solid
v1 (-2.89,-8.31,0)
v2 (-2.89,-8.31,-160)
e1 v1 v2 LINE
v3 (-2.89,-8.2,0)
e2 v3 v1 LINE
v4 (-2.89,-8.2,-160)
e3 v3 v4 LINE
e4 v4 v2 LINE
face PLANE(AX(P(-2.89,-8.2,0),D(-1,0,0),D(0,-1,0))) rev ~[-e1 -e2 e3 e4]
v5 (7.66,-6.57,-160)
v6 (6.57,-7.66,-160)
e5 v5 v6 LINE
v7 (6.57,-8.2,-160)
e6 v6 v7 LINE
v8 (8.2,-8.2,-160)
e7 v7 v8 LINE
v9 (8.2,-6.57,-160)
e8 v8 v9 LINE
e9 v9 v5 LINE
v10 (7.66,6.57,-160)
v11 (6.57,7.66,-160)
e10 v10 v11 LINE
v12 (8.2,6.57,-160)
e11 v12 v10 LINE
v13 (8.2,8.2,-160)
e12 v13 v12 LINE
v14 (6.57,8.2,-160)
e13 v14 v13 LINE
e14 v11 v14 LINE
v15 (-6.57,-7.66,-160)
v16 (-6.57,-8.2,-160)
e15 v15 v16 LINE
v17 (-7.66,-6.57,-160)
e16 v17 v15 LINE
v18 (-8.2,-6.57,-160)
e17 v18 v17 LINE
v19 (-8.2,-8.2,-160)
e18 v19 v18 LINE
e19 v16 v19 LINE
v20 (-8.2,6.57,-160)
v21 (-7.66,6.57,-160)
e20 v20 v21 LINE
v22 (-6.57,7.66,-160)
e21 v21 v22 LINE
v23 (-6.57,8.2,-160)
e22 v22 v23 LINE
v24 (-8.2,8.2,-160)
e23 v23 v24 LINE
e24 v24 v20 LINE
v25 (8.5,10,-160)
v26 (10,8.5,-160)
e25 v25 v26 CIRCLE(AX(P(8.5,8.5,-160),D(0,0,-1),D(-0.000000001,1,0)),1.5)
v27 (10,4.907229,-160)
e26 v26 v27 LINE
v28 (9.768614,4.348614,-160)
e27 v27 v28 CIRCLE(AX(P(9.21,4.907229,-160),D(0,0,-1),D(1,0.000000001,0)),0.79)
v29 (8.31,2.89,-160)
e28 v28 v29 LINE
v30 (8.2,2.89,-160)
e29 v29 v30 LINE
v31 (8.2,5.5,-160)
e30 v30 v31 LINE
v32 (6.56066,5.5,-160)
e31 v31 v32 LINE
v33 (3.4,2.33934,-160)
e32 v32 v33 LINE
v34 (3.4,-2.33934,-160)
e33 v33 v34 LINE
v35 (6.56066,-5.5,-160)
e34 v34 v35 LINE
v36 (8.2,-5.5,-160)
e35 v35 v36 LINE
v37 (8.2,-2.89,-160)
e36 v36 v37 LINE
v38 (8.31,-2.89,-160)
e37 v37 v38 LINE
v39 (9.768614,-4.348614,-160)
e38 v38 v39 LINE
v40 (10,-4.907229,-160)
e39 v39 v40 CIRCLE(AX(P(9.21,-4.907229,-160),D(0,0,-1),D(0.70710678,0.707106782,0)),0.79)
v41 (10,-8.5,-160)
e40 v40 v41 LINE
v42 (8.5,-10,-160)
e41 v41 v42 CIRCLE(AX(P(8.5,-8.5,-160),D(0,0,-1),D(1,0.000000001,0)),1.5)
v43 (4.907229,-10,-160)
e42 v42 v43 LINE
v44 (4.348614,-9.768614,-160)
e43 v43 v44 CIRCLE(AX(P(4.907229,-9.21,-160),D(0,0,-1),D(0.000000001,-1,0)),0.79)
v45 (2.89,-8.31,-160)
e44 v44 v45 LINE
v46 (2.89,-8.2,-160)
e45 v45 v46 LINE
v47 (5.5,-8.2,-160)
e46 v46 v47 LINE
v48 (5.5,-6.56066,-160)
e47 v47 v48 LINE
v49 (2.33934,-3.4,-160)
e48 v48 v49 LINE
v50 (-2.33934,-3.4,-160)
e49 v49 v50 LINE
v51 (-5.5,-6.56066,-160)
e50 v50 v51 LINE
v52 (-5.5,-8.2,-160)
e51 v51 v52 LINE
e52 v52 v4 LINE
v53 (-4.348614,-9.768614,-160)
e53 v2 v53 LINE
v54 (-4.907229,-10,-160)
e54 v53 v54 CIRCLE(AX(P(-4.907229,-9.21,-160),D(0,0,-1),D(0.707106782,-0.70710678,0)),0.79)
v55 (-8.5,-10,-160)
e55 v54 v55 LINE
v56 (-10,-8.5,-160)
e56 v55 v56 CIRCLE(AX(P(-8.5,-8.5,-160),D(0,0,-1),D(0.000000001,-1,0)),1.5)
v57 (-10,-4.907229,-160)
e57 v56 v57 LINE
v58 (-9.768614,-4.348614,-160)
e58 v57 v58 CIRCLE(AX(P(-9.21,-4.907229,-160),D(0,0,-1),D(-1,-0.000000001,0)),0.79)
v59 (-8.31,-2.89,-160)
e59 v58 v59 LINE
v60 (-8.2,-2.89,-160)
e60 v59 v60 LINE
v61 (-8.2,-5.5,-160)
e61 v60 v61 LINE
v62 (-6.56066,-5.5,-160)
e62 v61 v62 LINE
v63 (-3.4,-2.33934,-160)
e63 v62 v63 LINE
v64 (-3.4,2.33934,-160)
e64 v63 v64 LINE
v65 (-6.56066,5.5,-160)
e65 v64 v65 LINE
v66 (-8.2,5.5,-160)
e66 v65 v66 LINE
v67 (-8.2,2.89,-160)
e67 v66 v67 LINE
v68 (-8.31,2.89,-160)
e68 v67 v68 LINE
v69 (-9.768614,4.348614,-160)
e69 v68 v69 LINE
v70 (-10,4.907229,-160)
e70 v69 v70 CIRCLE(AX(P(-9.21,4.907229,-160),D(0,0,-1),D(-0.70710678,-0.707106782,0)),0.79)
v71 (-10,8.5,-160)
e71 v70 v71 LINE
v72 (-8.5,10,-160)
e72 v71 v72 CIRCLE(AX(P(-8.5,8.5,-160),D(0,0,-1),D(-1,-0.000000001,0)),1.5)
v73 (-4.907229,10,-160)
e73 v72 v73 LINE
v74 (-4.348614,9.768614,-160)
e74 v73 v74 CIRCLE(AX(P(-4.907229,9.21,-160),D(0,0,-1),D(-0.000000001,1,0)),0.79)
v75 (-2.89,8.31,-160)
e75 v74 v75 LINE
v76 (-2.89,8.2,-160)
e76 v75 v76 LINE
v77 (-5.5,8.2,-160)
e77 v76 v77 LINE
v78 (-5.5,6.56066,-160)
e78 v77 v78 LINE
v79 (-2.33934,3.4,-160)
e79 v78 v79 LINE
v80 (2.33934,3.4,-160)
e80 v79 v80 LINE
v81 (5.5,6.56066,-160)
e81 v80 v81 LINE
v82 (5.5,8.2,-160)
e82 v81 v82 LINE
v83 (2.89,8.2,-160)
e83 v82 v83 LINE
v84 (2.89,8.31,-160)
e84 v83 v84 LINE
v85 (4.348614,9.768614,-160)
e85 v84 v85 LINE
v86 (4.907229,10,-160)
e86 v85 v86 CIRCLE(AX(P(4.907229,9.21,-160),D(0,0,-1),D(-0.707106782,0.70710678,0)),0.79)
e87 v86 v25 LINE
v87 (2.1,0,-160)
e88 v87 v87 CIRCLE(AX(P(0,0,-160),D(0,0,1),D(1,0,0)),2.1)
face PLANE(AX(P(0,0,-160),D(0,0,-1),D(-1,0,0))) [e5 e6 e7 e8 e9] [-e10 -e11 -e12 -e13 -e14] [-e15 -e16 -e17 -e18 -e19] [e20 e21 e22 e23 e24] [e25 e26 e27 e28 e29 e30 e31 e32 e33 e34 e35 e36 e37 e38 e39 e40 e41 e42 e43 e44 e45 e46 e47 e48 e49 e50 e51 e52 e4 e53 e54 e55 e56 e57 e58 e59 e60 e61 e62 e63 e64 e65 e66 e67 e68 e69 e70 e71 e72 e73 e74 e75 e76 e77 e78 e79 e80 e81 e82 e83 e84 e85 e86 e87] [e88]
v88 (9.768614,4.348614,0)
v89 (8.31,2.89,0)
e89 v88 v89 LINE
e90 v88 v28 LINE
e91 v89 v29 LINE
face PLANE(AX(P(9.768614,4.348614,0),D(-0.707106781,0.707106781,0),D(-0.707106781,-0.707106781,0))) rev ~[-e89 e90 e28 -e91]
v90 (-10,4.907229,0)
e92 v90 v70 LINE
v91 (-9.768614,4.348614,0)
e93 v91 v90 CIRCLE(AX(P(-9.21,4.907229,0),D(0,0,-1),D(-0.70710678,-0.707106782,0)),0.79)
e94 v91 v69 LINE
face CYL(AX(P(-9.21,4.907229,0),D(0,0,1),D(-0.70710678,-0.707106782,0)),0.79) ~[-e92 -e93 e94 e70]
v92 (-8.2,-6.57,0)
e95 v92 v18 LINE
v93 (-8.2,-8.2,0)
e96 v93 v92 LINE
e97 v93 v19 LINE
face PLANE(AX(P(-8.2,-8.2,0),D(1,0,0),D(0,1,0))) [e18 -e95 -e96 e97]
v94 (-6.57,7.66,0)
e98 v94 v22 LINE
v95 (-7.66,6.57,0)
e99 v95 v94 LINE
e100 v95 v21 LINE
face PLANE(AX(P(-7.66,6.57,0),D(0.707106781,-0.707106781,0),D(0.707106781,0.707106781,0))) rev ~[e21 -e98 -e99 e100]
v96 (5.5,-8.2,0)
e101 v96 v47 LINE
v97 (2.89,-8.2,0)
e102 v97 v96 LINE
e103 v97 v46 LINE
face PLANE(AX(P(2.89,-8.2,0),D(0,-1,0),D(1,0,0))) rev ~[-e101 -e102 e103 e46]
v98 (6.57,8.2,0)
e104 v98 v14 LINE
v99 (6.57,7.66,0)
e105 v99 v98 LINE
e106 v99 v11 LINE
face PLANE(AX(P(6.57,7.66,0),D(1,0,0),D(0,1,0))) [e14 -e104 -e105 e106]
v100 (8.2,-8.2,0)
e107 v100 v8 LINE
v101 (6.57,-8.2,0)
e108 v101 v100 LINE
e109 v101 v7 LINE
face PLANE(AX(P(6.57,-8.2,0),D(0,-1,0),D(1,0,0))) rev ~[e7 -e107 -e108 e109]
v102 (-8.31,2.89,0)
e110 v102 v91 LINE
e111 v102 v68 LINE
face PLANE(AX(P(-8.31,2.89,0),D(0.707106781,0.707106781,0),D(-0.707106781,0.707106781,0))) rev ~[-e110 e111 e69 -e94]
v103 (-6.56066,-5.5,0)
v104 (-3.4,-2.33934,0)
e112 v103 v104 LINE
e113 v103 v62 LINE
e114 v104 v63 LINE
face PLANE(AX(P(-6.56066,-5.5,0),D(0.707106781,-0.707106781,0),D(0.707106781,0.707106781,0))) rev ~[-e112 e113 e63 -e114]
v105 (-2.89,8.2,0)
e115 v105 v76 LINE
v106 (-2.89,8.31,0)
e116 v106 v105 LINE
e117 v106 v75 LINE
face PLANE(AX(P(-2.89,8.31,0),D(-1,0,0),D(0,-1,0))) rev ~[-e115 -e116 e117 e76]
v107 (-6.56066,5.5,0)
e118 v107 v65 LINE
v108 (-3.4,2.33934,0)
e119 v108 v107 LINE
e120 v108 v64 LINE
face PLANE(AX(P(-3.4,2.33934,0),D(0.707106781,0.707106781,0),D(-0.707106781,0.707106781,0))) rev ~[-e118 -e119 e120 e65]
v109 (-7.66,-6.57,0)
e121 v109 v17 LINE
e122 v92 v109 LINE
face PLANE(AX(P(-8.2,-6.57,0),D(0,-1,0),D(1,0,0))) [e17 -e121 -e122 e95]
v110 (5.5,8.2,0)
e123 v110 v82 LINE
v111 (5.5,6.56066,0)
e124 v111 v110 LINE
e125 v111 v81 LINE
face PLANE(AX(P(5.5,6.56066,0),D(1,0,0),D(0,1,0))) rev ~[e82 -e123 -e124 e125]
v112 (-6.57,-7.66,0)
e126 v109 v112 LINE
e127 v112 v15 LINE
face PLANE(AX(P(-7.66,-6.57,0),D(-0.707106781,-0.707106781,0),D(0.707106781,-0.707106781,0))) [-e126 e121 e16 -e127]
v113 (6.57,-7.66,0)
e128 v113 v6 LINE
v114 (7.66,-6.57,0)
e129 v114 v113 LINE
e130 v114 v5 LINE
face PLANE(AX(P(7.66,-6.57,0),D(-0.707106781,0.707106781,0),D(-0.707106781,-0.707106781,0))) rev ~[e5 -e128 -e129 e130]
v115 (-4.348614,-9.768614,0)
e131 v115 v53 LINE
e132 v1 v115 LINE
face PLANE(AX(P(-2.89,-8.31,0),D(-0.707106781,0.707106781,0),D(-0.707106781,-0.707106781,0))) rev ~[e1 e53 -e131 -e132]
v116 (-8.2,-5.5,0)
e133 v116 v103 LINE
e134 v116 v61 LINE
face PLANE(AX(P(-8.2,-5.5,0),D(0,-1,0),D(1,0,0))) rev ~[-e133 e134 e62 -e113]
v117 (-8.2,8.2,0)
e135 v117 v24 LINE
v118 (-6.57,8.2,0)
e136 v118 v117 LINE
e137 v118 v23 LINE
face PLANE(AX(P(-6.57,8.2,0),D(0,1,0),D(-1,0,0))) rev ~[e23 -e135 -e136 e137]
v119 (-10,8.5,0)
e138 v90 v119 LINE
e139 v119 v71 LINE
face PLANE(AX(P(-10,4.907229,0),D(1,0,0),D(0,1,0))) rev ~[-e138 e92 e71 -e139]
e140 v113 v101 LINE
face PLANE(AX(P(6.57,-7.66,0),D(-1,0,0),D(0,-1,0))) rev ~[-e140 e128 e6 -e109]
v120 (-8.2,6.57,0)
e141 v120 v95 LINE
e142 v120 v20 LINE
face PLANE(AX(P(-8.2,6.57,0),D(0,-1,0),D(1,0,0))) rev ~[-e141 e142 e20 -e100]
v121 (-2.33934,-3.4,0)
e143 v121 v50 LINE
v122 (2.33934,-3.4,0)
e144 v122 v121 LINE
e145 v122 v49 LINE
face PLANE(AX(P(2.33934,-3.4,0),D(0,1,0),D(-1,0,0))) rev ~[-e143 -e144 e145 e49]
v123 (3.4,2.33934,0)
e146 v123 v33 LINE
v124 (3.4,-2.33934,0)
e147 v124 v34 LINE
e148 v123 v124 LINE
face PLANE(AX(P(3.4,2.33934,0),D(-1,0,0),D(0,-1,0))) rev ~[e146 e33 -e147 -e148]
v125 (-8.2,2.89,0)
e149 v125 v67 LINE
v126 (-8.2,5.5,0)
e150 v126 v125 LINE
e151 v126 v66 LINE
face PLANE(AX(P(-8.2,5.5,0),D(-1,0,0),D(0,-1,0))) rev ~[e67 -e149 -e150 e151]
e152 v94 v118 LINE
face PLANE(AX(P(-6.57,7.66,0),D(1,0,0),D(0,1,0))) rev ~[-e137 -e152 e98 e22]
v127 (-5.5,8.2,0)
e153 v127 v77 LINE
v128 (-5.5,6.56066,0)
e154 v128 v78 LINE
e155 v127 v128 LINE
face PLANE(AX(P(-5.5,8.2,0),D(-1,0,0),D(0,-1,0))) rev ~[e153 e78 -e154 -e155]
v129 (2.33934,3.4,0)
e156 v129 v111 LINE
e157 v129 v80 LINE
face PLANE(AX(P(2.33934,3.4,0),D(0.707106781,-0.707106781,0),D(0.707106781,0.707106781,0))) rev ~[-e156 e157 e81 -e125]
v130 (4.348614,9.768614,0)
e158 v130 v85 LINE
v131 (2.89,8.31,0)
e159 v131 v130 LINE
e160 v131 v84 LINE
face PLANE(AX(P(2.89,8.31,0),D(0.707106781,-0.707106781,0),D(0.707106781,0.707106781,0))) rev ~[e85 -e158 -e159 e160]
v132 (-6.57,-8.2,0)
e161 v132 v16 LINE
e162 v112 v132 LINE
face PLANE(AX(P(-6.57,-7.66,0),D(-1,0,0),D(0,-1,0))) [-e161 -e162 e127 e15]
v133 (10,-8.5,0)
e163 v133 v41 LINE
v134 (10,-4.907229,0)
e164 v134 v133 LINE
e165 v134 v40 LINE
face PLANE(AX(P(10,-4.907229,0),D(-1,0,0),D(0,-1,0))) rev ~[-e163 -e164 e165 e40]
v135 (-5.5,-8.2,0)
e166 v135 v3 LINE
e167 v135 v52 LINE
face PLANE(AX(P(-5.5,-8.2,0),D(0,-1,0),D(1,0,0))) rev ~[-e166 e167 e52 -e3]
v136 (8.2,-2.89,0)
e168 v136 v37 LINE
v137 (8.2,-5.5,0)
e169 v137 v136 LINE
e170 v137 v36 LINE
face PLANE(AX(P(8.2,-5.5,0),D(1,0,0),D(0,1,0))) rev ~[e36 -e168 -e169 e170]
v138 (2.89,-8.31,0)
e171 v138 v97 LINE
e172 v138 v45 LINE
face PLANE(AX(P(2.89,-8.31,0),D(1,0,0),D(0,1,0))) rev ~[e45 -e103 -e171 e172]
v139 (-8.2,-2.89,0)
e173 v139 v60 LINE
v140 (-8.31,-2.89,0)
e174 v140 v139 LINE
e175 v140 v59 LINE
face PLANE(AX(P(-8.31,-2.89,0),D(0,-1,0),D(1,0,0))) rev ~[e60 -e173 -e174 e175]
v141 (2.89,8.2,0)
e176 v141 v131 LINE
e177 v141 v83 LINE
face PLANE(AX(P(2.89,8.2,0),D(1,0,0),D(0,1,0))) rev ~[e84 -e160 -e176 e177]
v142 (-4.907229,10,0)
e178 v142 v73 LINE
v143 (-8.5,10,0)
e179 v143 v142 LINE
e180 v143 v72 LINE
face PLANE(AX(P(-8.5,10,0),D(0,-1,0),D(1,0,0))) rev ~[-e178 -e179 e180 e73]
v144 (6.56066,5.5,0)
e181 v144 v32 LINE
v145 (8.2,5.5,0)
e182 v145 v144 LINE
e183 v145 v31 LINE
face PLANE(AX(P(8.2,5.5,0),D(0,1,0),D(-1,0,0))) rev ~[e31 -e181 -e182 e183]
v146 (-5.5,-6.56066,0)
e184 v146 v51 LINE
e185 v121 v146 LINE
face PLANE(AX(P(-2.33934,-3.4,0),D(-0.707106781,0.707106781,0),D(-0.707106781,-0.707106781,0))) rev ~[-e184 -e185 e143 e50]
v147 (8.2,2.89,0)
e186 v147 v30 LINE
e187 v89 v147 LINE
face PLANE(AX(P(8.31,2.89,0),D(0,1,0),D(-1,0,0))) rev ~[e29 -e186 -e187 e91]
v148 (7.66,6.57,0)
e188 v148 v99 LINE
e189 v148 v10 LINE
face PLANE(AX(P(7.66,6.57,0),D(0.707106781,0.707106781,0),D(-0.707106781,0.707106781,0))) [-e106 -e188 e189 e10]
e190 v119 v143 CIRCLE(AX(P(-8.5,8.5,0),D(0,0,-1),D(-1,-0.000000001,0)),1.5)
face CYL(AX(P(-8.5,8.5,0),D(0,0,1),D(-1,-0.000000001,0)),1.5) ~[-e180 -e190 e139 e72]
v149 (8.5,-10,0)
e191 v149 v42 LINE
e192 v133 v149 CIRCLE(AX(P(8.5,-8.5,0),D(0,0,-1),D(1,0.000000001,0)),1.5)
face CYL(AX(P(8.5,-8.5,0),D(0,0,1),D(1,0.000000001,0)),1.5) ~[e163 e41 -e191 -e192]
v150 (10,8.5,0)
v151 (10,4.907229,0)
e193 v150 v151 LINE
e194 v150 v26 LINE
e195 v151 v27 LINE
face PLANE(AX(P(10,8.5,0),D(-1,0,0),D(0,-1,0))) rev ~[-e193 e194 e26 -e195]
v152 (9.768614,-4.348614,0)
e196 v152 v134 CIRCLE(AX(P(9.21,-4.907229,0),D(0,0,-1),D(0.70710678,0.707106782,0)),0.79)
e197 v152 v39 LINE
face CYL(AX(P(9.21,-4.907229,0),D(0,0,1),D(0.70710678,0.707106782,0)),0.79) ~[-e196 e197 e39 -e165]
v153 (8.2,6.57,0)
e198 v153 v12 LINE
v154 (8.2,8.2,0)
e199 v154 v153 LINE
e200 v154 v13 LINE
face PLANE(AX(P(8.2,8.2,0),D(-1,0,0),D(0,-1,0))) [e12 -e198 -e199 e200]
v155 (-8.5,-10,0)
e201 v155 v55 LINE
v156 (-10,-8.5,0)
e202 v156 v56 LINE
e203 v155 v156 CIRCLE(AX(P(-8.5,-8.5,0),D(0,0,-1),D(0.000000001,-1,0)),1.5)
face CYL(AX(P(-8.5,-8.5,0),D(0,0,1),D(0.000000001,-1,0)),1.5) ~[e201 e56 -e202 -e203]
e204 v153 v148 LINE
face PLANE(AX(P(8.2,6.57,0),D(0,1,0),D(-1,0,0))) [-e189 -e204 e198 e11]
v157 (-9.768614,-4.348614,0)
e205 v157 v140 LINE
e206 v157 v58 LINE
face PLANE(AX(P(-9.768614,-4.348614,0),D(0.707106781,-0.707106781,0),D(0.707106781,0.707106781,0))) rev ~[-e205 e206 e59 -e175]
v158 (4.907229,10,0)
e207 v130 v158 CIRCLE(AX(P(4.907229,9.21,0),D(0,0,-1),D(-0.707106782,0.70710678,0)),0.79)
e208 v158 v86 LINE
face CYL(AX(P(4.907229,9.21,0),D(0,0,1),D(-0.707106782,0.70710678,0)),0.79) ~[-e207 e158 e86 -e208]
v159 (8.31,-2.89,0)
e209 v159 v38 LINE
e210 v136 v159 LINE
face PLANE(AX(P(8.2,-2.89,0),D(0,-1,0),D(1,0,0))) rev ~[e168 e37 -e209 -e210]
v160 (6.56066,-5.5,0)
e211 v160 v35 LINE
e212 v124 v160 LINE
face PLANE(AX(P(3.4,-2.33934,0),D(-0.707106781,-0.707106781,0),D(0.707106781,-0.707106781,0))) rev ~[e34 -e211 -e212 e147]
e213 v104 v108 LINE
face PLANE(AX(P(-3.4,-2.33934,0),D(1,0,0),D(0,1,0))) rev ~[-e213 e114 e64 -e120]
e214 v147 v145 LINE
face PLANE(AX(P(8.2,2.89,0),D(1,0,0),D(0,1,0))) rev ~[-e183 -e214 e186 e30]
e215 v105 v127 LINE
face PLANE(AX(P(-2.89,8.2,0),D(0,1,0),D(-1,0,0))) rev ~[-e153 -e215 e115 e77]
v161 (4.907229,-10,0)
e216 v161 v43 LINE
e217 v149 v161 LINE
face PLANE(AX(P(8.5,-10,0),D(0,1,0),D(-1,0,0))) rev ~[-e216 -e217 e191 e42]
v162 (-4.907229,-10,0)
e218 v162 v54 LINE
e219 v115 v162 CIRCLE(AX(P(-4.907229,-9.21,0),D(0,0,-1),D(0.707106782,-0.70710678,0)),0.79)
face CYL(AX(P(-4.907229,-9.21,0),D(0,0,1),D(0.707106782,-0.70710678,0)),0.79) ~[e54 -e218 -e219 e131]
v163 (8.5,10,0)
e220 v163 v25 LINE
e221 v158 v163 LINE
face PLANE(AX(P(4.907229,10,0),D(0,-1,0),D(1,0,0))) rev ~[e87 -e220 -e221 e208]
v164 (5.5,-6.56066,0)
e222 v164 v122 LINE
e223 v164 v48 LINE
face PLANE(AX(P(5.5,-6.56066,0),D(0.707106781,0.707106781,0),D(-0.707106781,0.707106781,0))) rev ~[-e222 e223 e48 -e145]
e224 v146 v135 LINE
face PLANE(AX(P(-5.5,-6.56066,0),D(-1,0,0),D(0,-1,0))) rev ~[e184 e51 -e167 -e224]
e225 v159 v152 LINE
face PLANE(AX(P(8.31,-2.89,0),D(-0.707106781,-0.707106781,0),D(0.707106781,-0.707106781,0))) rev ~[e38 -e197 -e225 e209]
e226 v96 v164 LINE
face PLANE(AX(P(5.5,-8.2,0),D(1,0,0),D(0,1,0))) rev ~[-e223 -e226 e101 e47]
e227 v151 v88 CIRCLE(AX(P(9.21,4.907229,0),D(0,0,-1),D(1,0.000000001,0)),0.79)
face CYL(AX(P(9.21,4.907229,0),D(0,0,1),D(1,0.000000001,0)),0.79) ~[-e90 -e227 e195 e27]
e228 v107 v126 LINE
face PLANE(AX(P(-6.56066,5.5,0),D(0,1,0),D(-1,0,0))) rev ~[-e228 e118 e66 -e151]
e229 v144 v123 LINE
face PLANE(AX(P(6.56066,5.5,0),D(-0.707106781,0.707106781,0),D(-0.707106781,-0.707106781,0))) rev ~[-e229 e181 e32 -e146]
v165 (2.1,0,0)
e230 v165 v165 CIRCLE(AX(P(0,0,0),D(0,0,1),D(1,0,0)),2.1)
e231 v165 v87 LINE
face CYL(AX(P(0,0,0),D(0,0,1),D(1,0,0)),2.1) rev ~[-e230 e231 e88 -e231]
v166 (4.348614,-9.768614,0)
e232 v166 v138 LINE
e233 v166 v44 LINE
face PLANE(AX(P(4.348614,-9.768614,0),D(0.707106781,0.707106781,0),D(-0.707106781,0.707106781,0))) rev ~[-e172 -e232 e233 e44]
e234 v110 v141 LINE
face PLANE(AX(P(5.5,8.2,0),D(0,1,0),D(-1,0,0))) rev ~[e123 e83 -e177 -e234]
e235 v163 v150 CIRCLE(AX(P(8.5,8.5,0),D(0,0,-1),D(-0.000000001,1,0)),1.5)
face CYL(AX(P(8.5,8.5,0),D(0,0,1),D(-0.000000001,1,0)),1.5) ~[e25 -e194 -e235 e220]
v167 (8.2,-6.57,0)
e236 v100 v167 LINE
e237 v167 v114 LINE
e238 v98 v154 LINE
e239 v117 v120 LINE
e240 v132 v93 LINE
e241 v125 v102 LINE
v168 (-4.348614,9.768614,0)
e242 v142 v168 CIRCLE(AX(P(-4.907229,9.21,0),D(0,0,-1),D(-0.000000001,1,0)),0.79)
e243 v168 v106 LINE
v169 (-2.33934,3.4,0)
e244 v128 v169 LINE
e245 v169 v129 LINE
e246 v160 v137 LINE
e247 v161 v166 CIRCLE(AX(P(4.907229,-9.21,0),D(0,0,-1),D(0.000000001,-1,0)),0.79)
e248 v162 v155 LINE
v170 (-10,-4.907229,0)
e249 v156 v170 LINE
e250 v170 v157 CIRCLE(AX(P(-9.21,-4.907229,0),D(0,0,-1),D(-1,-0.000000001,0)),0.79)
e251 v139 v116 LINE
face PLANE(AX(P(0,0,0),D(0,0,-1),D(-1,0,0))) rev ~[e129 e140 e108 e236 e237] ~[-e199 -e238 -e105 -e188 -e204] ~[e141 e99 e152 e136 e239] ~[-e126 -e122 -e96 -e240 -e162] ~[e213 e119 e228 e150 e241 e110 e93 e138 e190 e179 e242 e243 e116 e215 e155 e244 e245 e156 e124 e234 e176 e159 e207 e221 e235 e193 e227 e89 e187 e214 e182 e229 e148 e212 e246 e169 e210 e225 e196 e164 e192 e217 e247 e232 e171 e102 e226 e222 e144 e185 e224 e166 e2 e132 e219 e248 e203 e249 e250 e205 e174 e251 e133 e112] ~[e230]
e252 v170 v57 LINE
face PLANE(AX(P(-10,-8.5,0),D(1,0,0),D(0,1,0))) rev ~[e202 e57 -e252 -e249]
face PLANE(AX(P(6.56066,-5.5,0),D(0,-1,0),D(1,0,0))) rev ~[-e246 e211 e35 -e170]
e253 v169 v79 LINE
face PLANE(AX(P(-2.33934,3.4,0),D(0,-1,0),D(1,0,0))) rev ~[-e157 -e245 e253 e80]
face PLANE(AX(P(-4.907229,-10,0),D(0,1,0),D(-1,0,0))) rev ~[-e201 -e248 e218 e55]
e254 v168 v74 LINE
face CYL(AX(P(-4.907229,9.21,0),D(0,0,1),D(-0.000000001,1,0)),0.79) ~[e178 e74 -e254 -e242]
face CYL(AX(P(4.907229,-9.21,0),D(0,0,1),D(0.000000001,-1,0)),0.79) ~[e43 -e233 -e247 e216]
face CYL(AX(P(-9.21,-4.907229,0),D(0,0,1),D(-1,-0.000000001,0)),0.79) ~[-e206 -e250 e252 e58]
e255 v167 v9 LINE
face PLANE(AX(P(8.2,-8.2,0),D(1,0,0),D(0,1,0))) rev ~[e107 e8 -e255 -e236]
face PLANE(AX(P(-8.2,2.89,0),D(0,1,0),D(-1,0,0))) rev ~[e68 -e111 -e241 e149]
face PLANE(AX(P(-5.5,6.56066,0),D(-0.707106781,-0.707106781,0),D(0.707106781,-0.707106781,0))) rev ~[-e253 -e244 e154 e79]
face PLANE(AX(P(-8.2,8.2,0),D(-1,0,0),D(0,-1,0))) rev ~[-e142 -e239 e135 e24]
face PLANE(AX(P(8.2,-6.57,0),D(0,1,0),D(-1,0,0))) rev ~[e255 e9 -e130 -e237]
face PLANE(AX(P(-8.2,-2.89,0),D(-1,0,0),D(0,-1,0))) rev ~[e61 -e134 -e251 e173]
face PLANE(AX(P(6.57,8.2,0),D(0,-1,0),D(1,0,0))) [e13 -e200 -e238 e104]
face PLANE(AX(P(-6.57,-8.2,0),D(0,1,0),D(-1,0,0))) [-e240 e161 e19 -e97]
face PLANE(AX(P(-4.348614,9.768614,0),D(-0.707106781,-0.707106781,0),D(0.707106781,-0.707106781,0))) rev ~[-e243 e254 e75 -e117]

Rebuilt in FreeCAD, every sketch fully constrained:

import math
import FreeCAD as App
import Part
import Sketcher
Q = App.Units.Quantity

doc = App.newDocument("Part")
body = doc.addObject("PartDesign::Body", "Body")

sketch1 = body.newObject("Sketcher::SketchObject", "Sketch")
sketch1.AttachmentSupport = (doc.getObject("XY_Plane"), [""])
sketch1.MapMode = "FlatFace"
sketch1.addGeometry(Part.LineSegment(App.Vector(-3.4, 2.34, 0), App.Vector(-3.4, -2.34, 0)), False)
sketch1.addGeometry(Part.LineSegment(App.Vector(-3.4, -2.34, 0), App.Vector(-6.56, -5.5, 0)), False)
sketch1.addGeometry(Part.LineSegment(App.Vector(-6.56, -5.5, 0), App.Vector(-8.2, -5.5, 0)), False)
sketch1.addGeometry(Part.LineSegment(App.Vector(-8.2, -5.5, 0), App.Vector(-8.2, -2.89, 0)), False)
sketch1.addGeometry(Part.LineSegment(App.Vector(-8.2, -2.89, 0), App.Vector(-8.31, -2.89, 0)), False)
sketch1.addGeometry(Part.LineSegment(App.Vector(-8.31, -2.89, 0), App.Vector(-9.77, -4.35, 0)), False)
sketch1.addGeometry(Part.ArcOfCircle(Part.Circle(App.Vector(-9.21, -4.91, 0), App.Vector(0, 0, 1), 0.79), math.radians(135), math.radians(180)), False)
sketch1.addGeometry(Part.LineSegment(App.Vector(-10, -4.91, 0), App.Vector(-10, -8.5, 0)), False)
sketch1.addGeometry(Part.ArcOfCircle(Part.Circle(App.Vector(-8.5, -8.5, 0), App.Vector(0, 0, 1), 1.5), math.radians(180), math.radians(270)), False)
sketch1.addGeometry(Part.LineSegment(App.Vector(-8.5, -10, 0), App.Vector(-4.91, -10, 0)), False)
sketch1.addGeometry(Part.ArcOfCircle(Part.Circle(App.Vector(-4.91, -9.21, 0), App.Vector(0, 0, 1), 0.79), math.radians(-90), math.radians(-45)), False)
sketch1.addGeometry(Part.LineSegment(App.Vector(-4.35, -9.77, 0), App.Vector(-2.89, -8.31, 0)), False)
sketch1.addGeometry(Part.LineSegment(App.Vector(-2.89, -8.31, 0), App.Vector(-2.89, -8.2, 0)), False)
sketch1.addGeometry(Part.LineSegment(App.Vector(-2.89, -8.2, 0), App.Vector(-5.5, -8.2, 0)), False)
sketch1.addGeometry(Part.LineSegment(App.Vector(-5.5, -8.2, 0), App.Vector(-5.5, -6.56, 0)), False)
sketch1.addGeometry(Part.LineSegment(App.Vector(-5.5, -6.56, 0), App.Vector(-2.34, -3.4, 0)), False)
sketch1.addGeometry(Part.LineSegment(App.Vector(-2.34, -3.4, 0), App.Vector(2.34, -3.4, 0)), False)
sketch1.addGeometry(Part.LineSegment(App.Vector(2.34, -3.4, 0), App.Vector(5.5, -6.56, 0)), False)
sketch1.addGeometry(Part.LineSegment(App.Vector(5.5, -6.56, 0), App.Vector(5.5, -8.2, 0)), False)
sketch1.addGeometry(Part.LineSegment(App.Vector(5.5, -8.2, 0), App.Vector(2.89, -8.2, 0)), False)
sketch1.addGeometry(Part.LineSegment(App.Vector(2.89, -8.2, 0), App.Vector(2.89, -8.31, 0)), False)
sketch1.addGeometry(Part.LineSegment(App.Vector(2.89, -8.31, 0), App.Vector(4.35, -9.77, 0)), False)
sketch1.addGeometry(Part.ArcOfCircle(Part.Circle(App.Vector(4.91, -9.21, 0), App.Vector(0, 0, 1), 0.79), math.radians(-135), math.radians(-90)), False)
sketch1.addGeometry(Part.LineSegment(App.Vector(4.91, -10, 0), App.Vector(8.5, -10, 0)), False)
sketch1.addGeometry(Part.ArcOfCircle(Part.Circle(App.Vector(8.5, -8.5, 0), App.Vector(0, 0, 1), 1.5), math.radians(-90), math.radians(0)), False)
sketch1.addGeometry(Part.LineSegment(App.Vector(10, -8.5, 0), App.Vector(10, -4.91, 0)), False)
sketch1.addGeometry(Part.ArcOfCircle(Part.Circle(App.Vector(9.21, -4.91, 0), App.Vector(0, 0, 1), 0.79), math.radians(0), math.radians(45)), False)
sketch1.addGeometry(Part.LineSegment(App.Vector(9.77, -4.35, 0), App.Vector(8.31, -2.89, 0)), False)
sketch1.addGeometry(Part.LineSegment(App.Vector(8.31, -2.89, 0), App.Vector(8.2, -2.89, 0)), False)
sketch1.addGeometry(Part.LineSegment(App.Vector(8.2, -2.89, 0), App.Vector(8.2, -5.5, 0)), False)
sketch1.addGeometry(Part.LineSegment(App.Vector(8.2, -5.5, 0), App.Vector(6.56, -5.5, 0)), False)
sketch1.addGeometry(Part.LineSegment(App.Vector(6.56, -5.5, 0), App.Vector(3.4, -2.34, 0)), False)
sketch1.addGeometry(Part.LineSegment(App.Vector(3.4, -2.34, 0), App.Vector(3.4, 2.34, 0)), False)
sketch1.addGeometry(Part.LineSegment(App.Vector(3.4, 2.34, 0), App.Vector(6.56, 5.5, 0)), False)
sketch1.addGeometry(Part.LineSegment(App.Vector(6.56, 5.5, 0), App.Vector(8.2, 5.5, 0)), False)
sketch1.addGeometry(Part.LineSegment(App.Vector(8.2, 5.5, 0), App.Vector(8.2, 2.89, 0)), False)
sketch1.addGeometry(Part.LineSegment(App.Vector(8.2, 2.89, 0), App.Vector(8.31, 2.89, 0)), False)
sketch1.addGeometry(Part.LineSegment(App.Vector(8.31, 2.89, 0), App.Vector(9.77, 4.35, 0)), False)
sketch1.addGeometry(Part.ArcOfCircle(Part.Circle(App.Vector(9.21, 4.91, 0), App.Vector(0, 0, 1), 0.79), math.radians(-45), math.radians(0)), False)
sketch1.addGeometry(Part.LineSegment(App.Vector(10, 4.91, 0), App.Vector(10, 8.5, 0)), False)
sketch1.addGeometry(Part.ArcOfCircle(Part.Circle(App.Vector(8.5, 8.5, 0), App.Vector(0, 0, 1), 1.5), math.radians(0), math.radians(90)), False)
sketch1.addGeometry(Part.LineSegment(App.Vector(8.5, 10, 0), App.Vector(4.91, 10, 0)), False)
sketch1.addGeometry(Part.ArcOfCircle(Part.Circle(App.Vector(4.91, 9.21, 0), App.Vector(0, 0, 1), 0.79), math.radians(90), math.radians(135)), False)
sketch1.addGeometry(Part.LineSegment(App.Vector(4.35, 9.77, 0), App.Vector(2.89, 8.31, 0)), False)
sketch1.addGeometry(Part.LineSegment(App.Vector(2.89, 8.31, 0), App.Vector(2.89, 8.2, 0)), False)
sketch1.addGeometry(Part.LineSegment(App.Vector(2.89, 8.2, 0), App.Vector(5.5, 8.2, 0)), False)
sketch1.addGeometry(Part.LineSegment(App.Vector(5.5, 8.2, 0), App.Vector(5.5, 6.56, 0)), False)
sketch1.addGeometry(Part.LineSegment(App.Vector(5.5, 6.56, 0), App.Vector(2.34, 3.4, 0)), False)
sketch1.addGeometry(Part.LineSegment(App.Vector(2.34, 3.4, 0), App.Vector(-2.34, 3.4, 0)), False)
sketch1.addGeometry(Part.LineSegment(App.Vector(-2.34, 3.4, 0), App.Vector(-5.5, 6.56, 0)), False)
sketch1.addGeometry(Part.LineSegment(App.Vector(-5.5, 6.56, 0), App.Vector(-5.5, 8.2, 0)), False)
sketch1.addGeometry(Part.LineSegment(App.Vector(-5.5, 8.2, 0), App.Vector(-2.89, 8.2, 0)), False)
sketch1.addGeometry(Part.LineSegment(App.Vector(-2.89, 8.2, 0), App.Vector(-2.89, 8.31, 0)), False)
sketch1.addGeometry(Part.LineSegment(App.Vector(-2.89, 8.31, 0), App.Vector(-4.35, 9.77, 0)), False)
sketch1.addGeometry(Part.ArcOfCircle(Part.Circle(App.Vector(-4.91, 9.21, 0), App.Vector(0, 0, 1), 0.79), math.radians(45), math.radians(90)), False)
sketch1.addGeometry(Part.LineSegment(App.Vector(-4.91, 10, 0), App.Vector(-8.5, 10, 0)), False)
sketch1.addGeometry(Part.ArcOfCircle(Part.Circle(App.Vector(-8.5, 8.5, 0), App.Vector(0, 0, 1), 1.5), math.radians(90), math.radians(180)), False)
sketch1.addGeometry(Part.LineSegment(App.Vector(-10, 8.5, 0), App.Vector(-10, 4.91, 0)), False)
sketch1.addGeometry(Part.ArcOfCircle(Part.Circle(App.Vector(-9.21, 4.91, 0), App.Vector(0, 0, 1), 0.79), math.radians(180), math.radians(225)), False)
sketch1.addGeometry(Part.LineSegment(App.Vector(-9.77, 4.35, 0), App.Vector(-8.31, 2.89, 0)), False)
sketch1.addGeometry(Part.LineSegment(App.Vector(-8.31, 2.89, 0), App.Vector(-8.2, 2.89, 0)), False)
sketch1.addGeometry(Part.LineSegment(App.Vector(-8.2, 2.89, 0), App.Vector(-8.2, 5.5, 0)), False)
sketch1.addGeometry(Part.LineSegment(App.Vector(-8.2, 5.5, 0), App.Vector(-6.56, 5.5, 0)), False)
sketch1.addGeometry(Part.LineSegment(App.Vector(-6.56, 5.5, 0), App.Vector(-3.4, 2.34, 0)), False)
sketch1.addGeometry(Part.LineSegment(App.Vector(7.66, -6.57, 0), App.Vector(8.2, -6.57, 0)), False)
sketch1.addGeometry(Part.LineSegment(App.Vector(8.2, -6.57, 0), App.Vector(8.2, -8.2, 0)), False)
sketch1.addGeometry(Part.LineSegment(App.Vector(8.2, -8.2, 0), App.Vector(6.57, -8.2, 0)), False)
sketch1.addGeometry(Part.LineSegment(App.Vector(6.57, -8.2, 0), App.Vector(6.57, -7.66, 0)), False)
sketch1.addGeometry(Part.LineSegment(App.Vector(6.57, -7.66, 0), App.Vector(7.66, -6.57, 0)), False)
sketch1.addGeometry(Part.LineSegment(App.Vector(-8.2, -6.57, 0), App.Vector(-7.66, -6.57, 0)), False)
sketch1.addGeometry(Part.LineSegment(App.Vector(-7.66, -6.57, 0), App.Vector(-6.57, -7.66, 0)), False)
sketch1.addGeometry(Part.LineSegment(App.Vector(-6.57, -7.66, 0), App.Vector(-6.57, -8.2, 0)), False)
sketch1.addGeometry(Part.LineSegment(App.Vector(-6.57, -8.2, 0), App.Vector(-8.2, -8.2, 0)), False)
sketch1.addGeometry(Part.LineSegment(App.Vector(-8.2, -8.2, 0), App.Vector(-8.2, -6.57, 0)), False)
sketch1.addGeometry(Part.LineSegment(App.Vector(8.2, 6.57, 0), App.Vector(7.66, 6.57, 0)), False)
sketch1.addGeometry(Part.LineSegment(App.Vector(7.66, 6.57, 0), App.Vector(6.57, 7.66, 0)), False)
sketch1.addGeometry(Part.LineSegment(App.Vector(6.57, 7.66, 0), App.Vector(6.57, 8.2, 0)), False)
sketch1.addGeometry(Part.LineSegment(App.Vector(6.57, 8.2, 0), App.Vector(8.2, 8.2, 0)), False)
sketch1.addGeometry(Part.LineSegment(App.Vector(8.2, 8.2, 0), App.Vector(8.2, 6.57, 0)), False)
sketch1.addGeometry(Part.Circle(App.Vector(0, 0, 0), App.Vector(0, 0, 1), 2.1), False)
sketch1.addGeometry(Part.LineSegment(App.Vector(-7.66, 6.57, 0), App.Vector(-8.2, 6.57, 0)), False)
sketch1.addGeometry(Part.LineSegment(App.Vector(-8.2, 6.57, 0), App.Vector(-8.2, 8.2, 0)), False)
sketch1.addGeometry(Part.LineSegment(App.Vector(-8.2, 8.2, 0), App.Vector(-6.57, 8.2, 0)), False)
sketch1.addGeometry(Part.LineSegment(App.Vector(-6.57, 8.2, 0), App.Vector(-6.57, 7.66, 0)), False)
sketch1.addGeometry(Part.LineSegment(App.Vector(-6.57, 7.66, 0), App.Vector(-7.66, 6.57, 0)), False)
sketch1.addConstraint(Sketcher.Constraint("Coincident", 0, 2, 1, 1))
sketch1.addConstraint(Sketcher.Constraint("Coincident", 1, 2, 2, 1))
sketch1.addConstraint(Sketcher.Constraint("Coincident", 2, 2, 3, 1))
sketch1.addConstraint(Sketcher.Constraint("Coincident", 3, 2, 4, 1))
sketch1.addConstraint(Sketcher.Constraint("Coincident", 4, 2, 5, 1))
sketch1.addConstraint(Sketcher.Constraint("Tangent", 5, 2, 6, 1))
sketch1.addConstraint(Sketcher.Constraint("Tangent", 6, 2, 7, 1))
sketch1.addConstraint(Sketcher.Constraint("Tangent", 7, 2, 8, 1))
sketch1.addConstraint(Sketcher.Constraint("Tangent", 8, 2, 9, 1))
sketch1.addConstraint(Sketcher.Constraint("Tangent", 9, 2, 10, 1))
sketch1.addConstraint(Sketcher.Constraint("Tangent", 10, 2, 11, 1))
sketch1.addConstraint(Sketcher.Constraint("Coincident", 11, 2, 12, 1))
sketch1.addConstraint(Sketcher.Constraint("Coincident", 12, 2, 13, 1))
sketch1.addConstraint(Sketcher.Constraint("Coincident", 13, 2, 14, 1))
sketch1.addConstraint(Sketcher.Constraint("Coincident", 14, 2, 15, 1))
sketch1.addConstraint(Sketcher.Constraint("Coincident", 15, 2, 16, 1))
sketch1.addConstraint(Sketcher.Constraint("Coincident", 16, 2, 17, 1))
sketch1.addConstraint(Sketcher.Constraint("Coincident", 17, 2, 18, 1))
sketch1.addConstraint(Sketcher.Constraint("Coincident", 18, 2, 19, 1))
sketch1.addConstraint(Sketcher.Constraint("Coincident", 19, 2, 20, 1))
sketch1.addConstraint(Sketcher.Constraint("Coincident", 20, 2, 21, 1))
sketch1.addConstraint(Sketcher.Constraint("Tangent", 21, 2, 22, 1))
sketch1.addConstraint(Sketcher.Constraint("Tangent", 22, 2, 23, 1))
sketch1.addConstraint(Sketcher.Constraint("Tangent", 23, 2, 24, 1))
sketch1.addConstraint(Sketcher.Constraint("Tangent", 24, 2, 25, 1))
sketch1.addConstraint(Sketcher.Constraint("Tangent", 25, 2, 26, 1))
sketch1.addConstraint(Sketcher.Constraint("Tangent", 26, 2, 27, 1))
sketch1.addConstraint(Sketcher.Constraint("Coincident", 27, 2, 28, 1))
sketch1.addConstraint(Sketcher.Constraint("Coincident", 28, 2, 29, 1))
sketch1.addConstraint(Sketcher.Constraint("Coincident", 29, 2, 30, 1))
sketch1.addConstraint(Sketcher.Constraint("Coincident", 30, 2, 31, 1))
sketch1.addConstraint(Sketcher.Constraint("Coincident", 31, 2, 32, 1))
sketch1.addConstraint(Sketcher.Constraint("Coincident", 32, 2, 33, 1))
sketch1.addConstraint(Sketcher.Constraint("Coincident", 33, 2, 34, 1))
sketch1.addConstraint(Sketcher.Constraint("Coincident", 34, 2, 35, 1))
sketch1.addConstraint(Sketcher.Constraint("Coincident", 35, 2, 36, 1))
sketch1.addConstraint(Sketcher.Constraint("Coincident", 36, 2, 37, 1))
sketch1.addConstraint(Sketcher.Constraint("Tangent", 37, 2, 38, 1))
sketch1.addConstraint(Sketcher.Constraint("Tangent", 38, 2, 39, 1))
sketch1.addConstraint(Sketcher.Constraint("Tangent", 39, 2, 40, 1))
sketch1.addConstraint(Sketcher.Constraint("Tangent", 40, 2, 41, 1))
sketch1.addConstraint(Sketcher.Constraint("Tangent", 41, 2, 42, 1))
sketch1.addConstraint(Sketcher.Constraint("Tangent", 42, 2, 43, 1))
sketch1.addConstraint(Sketcher.Constraint("Coincident", 43, 2, 44, 1))
sketch1.addConstraint(Sketcher.Constraint("Coincident", 44, 2, 45, 1))
sketch1.addConstraint(Sketcher.Constraint("Coincident", 45, 2, 46, 1))
sketch1.addConstraint(Sketcher.Constraint("Coincident", 46, 2, 47, 1))
sketch1.addConstraint(Sketcher.Constraint("Coincident", 47, 2, 48, 1))
sketch1.addConstraint(Sketcher.Constraint("Coincident", 48, 2, 49, 1))
sketch1.addConstraint(Sketcher.Constraint("Coincident", 49, 2, 50, 1))
sketch1.addConstraint(Sketcher.Constraint("Coincident", 50, 2, 51, 1))
sketch1.addConstraint(Sketcher.Constraint("Coincident", 51, 2, 52, 1))
sketch1.addConstraint(Sketcher.Constraint("Coincident", 52, 2, 53, 1))
sketch1.addConstraint(Sketcher.Constraint("Tangent", 53, 2, 54, 1))
sketch1.addConstraint(Sketcher.Constraint("Tangent", 54, 2, 55, 1))
sketch1.addConstraint(Sketcher.Constraint("Tangent", 55, 2, 56, 1))
sketch1.addConstraint(Sketcher.Constraint("Tangent", 56, 2, 57, 1))
sketch1.addConstraint(Sketcher.Constraint("Tangent", 57, 2, 58, 1))
sketch1.addConstraint(Sketcher.Constraint("Tangent", 58, 2, 59, 1))
sketch1.addConstraint(Sketcher.Constraint("Coincident", 59, 2, 60, 1))
sketch1.addConstraint(Sketcher.Constraint("Coincident", 60, 2, 61, 1))
sketch1.addConstraint(Sketcher.Constraint("Coincident", 61, 2, 62, 1))
sketch1.addConstraint(Sketcher.Constraint("Coincident", 62, 2, 63, 1))
sketch1.addConstraint(Sketcher.Constraint("Coincident", 63, 2, 0, 1))
sketch1.addConstraint(Sketcher.Constraint("Coincident", 64, 2, 65, 1))
sketch1.addConstraint(Sketcher.Constraint("Coincident", 65, 2, 66, 1))
sketch1.addConstraint(Sketcher.Constraint("Coincident", 66, 2, 67, 1))
sketch1.addConstraint(Sketcher.Constraint("Coincident", 67, 2, 68, 1))
sketch1.addConstraint(Sketcher.Constraint("Coincident", 68, 2, 64, 1))
sketch1.addConstraint(Sketcher.Constraint("Coincident", 69, 2, 70, 1))
sketch1.addConstraint(Sketcher.Constraint("Coincident", 70, 2, 71, 1))
sketch1.addConstraint(Sketcher.Constraint("Coincident", 71, 2, 72, 1))
sketch1.addConstraint(Sketcher.Constraint("Coincident", 72, 2, 73, 1))
sketch1.addConstraint(Sketcher.Constraint("Coincident", 73, 2, 69, 1))
sketch1.addConstraint(Sketcher.Constraint("Coincident", 74, 2, 75, 1))
sketch1.addConstraint(Sketcher.Constraint("Coincident", 75, 2, 76, 1))
sketch1.addConstraint(Sketcher.Constraint("Coincident", 76, 2, 77, 1))
sketch1.addConstraint(Sketcher.Constraint("Coincident", 77, 2, 78, 1))
sketch1.addConstraint(Sketcher.Constraint("Coincident", 78, 2, 74, 1))
sketch1.addConstraint(Sketcher.Constraint("Coincident", 80, 2, 81, 1))
sketch1.addConstraint(Sketcher.Constraint("Coincident", 81, 2, 82, 1))
sketch1.addConstraint(Sketcher.Constraint("Coincident", 82, 2, 83, 1))
sketch1.addConstraint(Sketcher.Constraint("Coincident", 83, 2, 84, 1))
sketch1.addConstraint(Sketcher.Constraint("Coincident", 84, 2, 80, 1))
sketch1.addConstraint(Sketcher.Constraint("Vertical", 0))
sketch1.addConstraint(Sketcher.Constraint("Horizontal", 2))
sketch1.addConstraint(Sketcher.Constraint("Vertical", 3))
sketch1.addConstraint(Sketcher.Constraint("Horizontal", 4))
sketch1.addConstraint(Sketcher.Constraint("Vertical", 7))
sketch1.addConstraint(Sketcher.Constraint("Horizontal", 9))
sketch1.addConstraint(Sketcher.Constraint("Vertical", 12))
sketch1.addConstraint(Sketcher.Constraint("Horizontal", 13))
sketch1.addConstraint(Sketcher.Constraint("Vertical", 14))
sketch1.addConstraint(Sketcher.Constraint("Horizontal", 16))
sketch1.addConstraint(Sketcher.Constraint("Vertical", 18))
sketch1.addConstraint(Sketcher.Constraint("Horizontal", 19))
sketch1.addConstraint(Sketcher.Constraint("Vertical", 20))
sketch1.addConstraint(Sketcher.Constraint("Horizontal", 23))
sketch1.addConstraint(Sketcher.Constraint("Vertical", 25))
sketch1.addConstraint(Sketcher.Constraint("Horizontal", 28))
sketch1.addConstraint(Sketcher.Constraint("Vertical", 29))
sketch1.addConstraint(Sketcher.Constraint("Horizontal", 30))
sketch1.addConstraint(Sketcher.Constraint("Vertical", 32))
sketch1.addConstraint(Sketcher.Constraint("Horizontal", 34))
sketch1.addConstraint(Sketcher.Constraint("Vertical", 35))
sketch1.addConstraint(Sketcher.Constraint("Horizontal", 36))
sketch1.addConstraint(Sketcher.Constraint("Vertical", 39))
sketch1.addConstraint(Sketcher.Constraint("Horizontal", 41))
sketch1.addConstraint(Sketcher.Constraint("Vertical", 44))
sketch1.addConstraint(Sketcher.Constraint("Horizontal", 45))
sketch1.addConstraint(Sketcher.Constraint("Vertical", 46))
sketch1.addConstraint(Sketcher.Constraint("Horizontal", 48))
sketch1.addConstraint(Sketcher.Constraint("Vertical", 50))
sketch1.addConstraint(Sketcher.Constraint("Horizontal", 51))
sketch1.addConstraint(Sketcher.Constraint("Vertical", 52))
sketch1.addConstraint(Sketcher.Constraint("Horizontal", 55))
sketch1.addConstraint(Sketcher.Constraint("Vertical", 57))
sketch1.addConstraint(Sketcher.Constraint("Horizontal", 60))
sketch1.addConstraint(Sketcher.Constraint("Vertical", 61))
sketch1.addConstraint(Sketcher.Constraint("Horizontal", 62))
sketch1.addConstraint(Sketcher.Constraint("Horizontal", 64))
sketch1.addConstraint(Sketcher.Constraint("Vertical", 65))
sketch1.addConstraint(Sketcher.Constraint("Horizontal", 66))
sketch1.addConstraint(Sketcher.Constraint("Vertical", 67))
sketch1.addConstraint(Sketcher.Constraint("Horizontal", 69))
sketch1.addConstraint(Sketcher.Constraint("Vertical", 71))
sketch1.addConstraint(Sketcher.Constraint("Horizontal", 72))
sketch1.addConstraint(Sketcher.Constraint("Vertical", 73))
sketch1.addConstraint(Sketcher.Constraint("Horizontal", 74))
sketch1.addConstraint(Sketcher.Constraint("Vertical", 76))
sketch1.addConstraint(Sketcher.Constraint("Horizontal", 77))
sketch1.addConstraint(Sketcher.Constraint("Vertical", 78))
sketch1.addConstraint(Sketcher.Constraint("Horizontal", 80))
sketch1.addConstraint(Sketcher.Constraint("Vertical", 81))
sketch1.addConstraint(Sketcher.Constraint("Horizontal", 82))
sketch1.addConstraint(Sketcher.Constraint("Vertical", 83))
sketch1.addConstraint(Sketcher.Constraint("Coincident", 79, 3, -1, 1))
sketch1.addConstraint(Sketcher.Constraint("Equal", 6, 10))
sketch1.addConstraint(Sketcher.Constraint("Equal", 10, 22))
sketch1.addConstraint(Sketcher.Constraint("Equal", 8, 24))
sketch1.addConstraint(Sketcher.Constraint("Equal", 22, 26))
sketch1.addConstraint(Sketcher.Constraint("Equal", 26, 38))
sketch1.addConstraint(Sketcher.Constraint("Equal", 24, 40))
sketch1.addConstraint(Sketcher.Constraint("Equal", 38, 42))
sketch1.addConstraint(Sketcher.Constraint("Equal", 42, 54))
sketch1.addConstraint(Sketcher.Constraint("Equal", 40, 56))
sketch1.addConstraint(Sketcher.Constraint("Equal", 54, 58))
sketch1.addConstraint(Sketcher.Constraint("Symmetric", 6, 3, 38, 3, -1, 1))
sketch1.addConstraint(Sketcher.Constraint("Symmetric", 10, 3, 42, 3, -1, 1))
sketch1.addConstraint(Sketcher.Constraint("Symmetric", 22, 3, 54, 3, -1, 1))
sketch1.addConstraint(Sketcher.Constraint("Symmetric", 26, 3, 58, 3, -1, 1))
sketch1.addConstraint(Sketcher.Constraint("Symmetric", 0, 2, 32, 2, -1, 1))
sketch1.addConstraint(Sketcher.Constraint("Symmetric", 1, 2, 33, 2, -1, 1))
sketch1.addConstraint(Sketcher.Constraint("Symmetric", 3, 2, 35, 2, -1, 1))
sketch1.addConstraint(Sketcher.Constraint("Symmetric", 11, 2, 43, 2, -1, 1))
sketch1.addConstraint(Sketcher.Constraint("Symmetric", 13, 2, 45, 2, -1, 1))
sketch1.addConstraint(Sketcher.Constraint("Symmetric", 15, 2, 47, 2, -1, 1))
sketch1.addConstraint(Sketcher.Constraint("Symmetric", 17, 2, 49, 2, -1, 1))
sketch1.addConstraint(Sketcher.Constraint("Symmetric", 19, 2, 51, 2, -1, 1))
sketch1.addConstraint(Sketcher.Constraint("Symmetric", 27, 2, 59, 2, -1, 1))
sketch1.addConstraint(Sketcher.Constraint("Symmetric", 29, 2, 61, 2, -1, 1))
sketch1.addConstraint(Sketcher.Constraint("Symmetric", 69, 2, 74, 2, -1, 1))
sketch1.addConstraint(Sketcher.Constraint("Symmetric", 70, 2, 75, 2, -1, 1))
sketch1.addConstraint(Sketcher.Constraint("Symmetric", 72, 2, 77, 2, -1, 1))
sketch1.addConstraint(Sketcher.Constraint("Symmetric", 64, 2, 80, 2, -1, 1))
sketch1.addConstraint(Sketcher.Constraint("Symmetric", 66, 2, 82, 2, -1, 1))
sketch1.addConstraint(Sketcher.Constraint("Symmetric", 10, 3, 22, 3, -2))
sketch1.addConstraint(Sketcher.Constraint("Symmetric", 6, 3, 26, 3, -2))
sketch1.addConstraint(Sketcher.Constraint("Symmetric", 14, 2, 17, 2, -2))
sketch1.addConstraint(Sketcher.Constraint("Symmetric", 12, 2, 19, 2, -2))
sketch1.addConstraint(Sketcher.Constraint("Symmetric", 4, 2, 27, 2, -2))
sketch1.addConstraint(Sketcher.Constraint("Symmetric", 2, 2, 29, 2, -2))
sketch1.addConstraint(Sketcher.Constraint("Symmetric", 68, 2, 69, 2, -2))
sketch1.addConstraint(Sketcher.Constraint("Symmetric", 67, 2, 70, 2, -2))
sketch1.addConstraint(Sketcher.Constraint("Symmetric", 65, 2, 72, 2, -2))
sketch1.addConstraint(Sketcher.Constraint("Parallel", 1, 5))
sketch1.addConstraint(Sketcher.Constraint("Parallel", 5, 11))
sketch1.addConstraint(Sketcher.Constraint("Parallel", 11, 15))
sketch1.addConstraint(Sketcher.Constraint("Perpendicular", 15, 17))
sketch1.addConstraint(Sketcher.Constraint("Parallel", 17, 21))
sketch1.addConstraint(Sketcher.Constraint("Parallel", 21, 27))
sketch1.addConstraint(Sketcher.Constraint("Parallel", 27, 31))
sketch1.addConstraint(Sketcher.Constraint("Parallel", 33, 37))
sketch1.addConstraint(Sketcher.Constraint("Parallel", 43, 47))
sketch1.addConstraint(Sketcher.Constraint("Perpendicular", 47, 49))
sketch1.addConstraint(Sketcher.Constraint("Parallel", 49, 53))
sketch1.addConstraint(Sketcher.Constraint("Parallel", 59, 63))
sketch1.addConstraint(Sketcher.Constraint("Perpendicular", 63, 68))
sketch1.addConstraint(Sketcher.Constraint("Perpendicular", 75, 84))
sketch1.addConstraint(Sketcher.Constraint("Horizontal", 0, 2, 31, 2))
sketch1.addConstraint(Sketcher.Constraint("Horizontal", 32, 2, 63, 2))
sketch1.addConstraint(Sketcher.Constraint("Horizontal", 19, 2, 65, 2))
sketch1.addConstraint(Sketcher.Constraint("Horizontal", 75, 2, 83, 2))
sketch1.addConstraint(Sketcher.Constraint("Vertical", 35, 2, 64, 2))
sketch1.addConstraint(Sketcher.Constraint("Equal", 48, 0))
sketch1.addConstraint(Sketcher.Constraint("Equal", 51, 3))
sketch1.addConstraint(Sketcher.Constraint("Equal", 55, 7))
sketch1.addConstraint(Sketcher.Constraint("Equal", 60, 12))
sketch1.addConstraint(Sketcher.Constraint("Equal", 62, 14))
sketch1.addConstraint(Sketcher.Constraint("Equal", 82, 65))
sketch1.addConstraint(Sketcher.Constraint("Equal", 5, 11))
sketch1.addConstraint(Sketcher.Constraint("Equal", 1, 15))
sketch1.addConstraint(Sketcher.Constraint("Diameter", 79, Q("4.2 mm")))
sketch1.addConstraint(Sketcher.Constraint("Radius", 8, Q("1.5 mm")))
sketch1.addConstraint(Sketcher.Constraint("Radius", 6, Q("0.79 mm")))
sketch1.addConstraint(Sketcher.Constraint("DistanceX", 6, 2, -1, 1, Q("10 mm")))
sketch1.addConstraint(Sketcher.Constraint("DistanceX", 4, 2, 4, 1, Q("0.11 mm")))
sketch1.addConstraint(Sketcher.Constraint("DistanceX", 13, 2, 13, 1, Q("2.61 mm")))
sketch1.addConstraint(Sketcher.Constraint("DistanceX", 64, 1, 64, 2, Q("0.54 mm")))
sketch1.addConstraint(Sketcher.Constraint("DistanceX", 66, 2, 66, 1, Q("1.63 mm")))
sketch1.addConstraint(Sketcher.Constraint("DistanceX", 0, 2, -1, 1, Q("3.4 mm")))
sketch1.addConstraint(Sketcher.Constraint("DistanceY", 1, 2, -1, 1, Q("5.5 mm")))
sketch1.addConstraint(Sketcher.Constraint("DistanceX", 2, 2, -1, 1, Q("8.2 mm")))
sketch1.addConstraint(Sketcher.Constraint("DistanceX", 2, 2, 2, 1, Q("1.63934 mm")))
pad1 = body.newObject("PartDesign::Pad", "Pad")
pad1.Profile = sketch1
pad1.Length = 160
pad1.Reversed = True

doc.recompute()
